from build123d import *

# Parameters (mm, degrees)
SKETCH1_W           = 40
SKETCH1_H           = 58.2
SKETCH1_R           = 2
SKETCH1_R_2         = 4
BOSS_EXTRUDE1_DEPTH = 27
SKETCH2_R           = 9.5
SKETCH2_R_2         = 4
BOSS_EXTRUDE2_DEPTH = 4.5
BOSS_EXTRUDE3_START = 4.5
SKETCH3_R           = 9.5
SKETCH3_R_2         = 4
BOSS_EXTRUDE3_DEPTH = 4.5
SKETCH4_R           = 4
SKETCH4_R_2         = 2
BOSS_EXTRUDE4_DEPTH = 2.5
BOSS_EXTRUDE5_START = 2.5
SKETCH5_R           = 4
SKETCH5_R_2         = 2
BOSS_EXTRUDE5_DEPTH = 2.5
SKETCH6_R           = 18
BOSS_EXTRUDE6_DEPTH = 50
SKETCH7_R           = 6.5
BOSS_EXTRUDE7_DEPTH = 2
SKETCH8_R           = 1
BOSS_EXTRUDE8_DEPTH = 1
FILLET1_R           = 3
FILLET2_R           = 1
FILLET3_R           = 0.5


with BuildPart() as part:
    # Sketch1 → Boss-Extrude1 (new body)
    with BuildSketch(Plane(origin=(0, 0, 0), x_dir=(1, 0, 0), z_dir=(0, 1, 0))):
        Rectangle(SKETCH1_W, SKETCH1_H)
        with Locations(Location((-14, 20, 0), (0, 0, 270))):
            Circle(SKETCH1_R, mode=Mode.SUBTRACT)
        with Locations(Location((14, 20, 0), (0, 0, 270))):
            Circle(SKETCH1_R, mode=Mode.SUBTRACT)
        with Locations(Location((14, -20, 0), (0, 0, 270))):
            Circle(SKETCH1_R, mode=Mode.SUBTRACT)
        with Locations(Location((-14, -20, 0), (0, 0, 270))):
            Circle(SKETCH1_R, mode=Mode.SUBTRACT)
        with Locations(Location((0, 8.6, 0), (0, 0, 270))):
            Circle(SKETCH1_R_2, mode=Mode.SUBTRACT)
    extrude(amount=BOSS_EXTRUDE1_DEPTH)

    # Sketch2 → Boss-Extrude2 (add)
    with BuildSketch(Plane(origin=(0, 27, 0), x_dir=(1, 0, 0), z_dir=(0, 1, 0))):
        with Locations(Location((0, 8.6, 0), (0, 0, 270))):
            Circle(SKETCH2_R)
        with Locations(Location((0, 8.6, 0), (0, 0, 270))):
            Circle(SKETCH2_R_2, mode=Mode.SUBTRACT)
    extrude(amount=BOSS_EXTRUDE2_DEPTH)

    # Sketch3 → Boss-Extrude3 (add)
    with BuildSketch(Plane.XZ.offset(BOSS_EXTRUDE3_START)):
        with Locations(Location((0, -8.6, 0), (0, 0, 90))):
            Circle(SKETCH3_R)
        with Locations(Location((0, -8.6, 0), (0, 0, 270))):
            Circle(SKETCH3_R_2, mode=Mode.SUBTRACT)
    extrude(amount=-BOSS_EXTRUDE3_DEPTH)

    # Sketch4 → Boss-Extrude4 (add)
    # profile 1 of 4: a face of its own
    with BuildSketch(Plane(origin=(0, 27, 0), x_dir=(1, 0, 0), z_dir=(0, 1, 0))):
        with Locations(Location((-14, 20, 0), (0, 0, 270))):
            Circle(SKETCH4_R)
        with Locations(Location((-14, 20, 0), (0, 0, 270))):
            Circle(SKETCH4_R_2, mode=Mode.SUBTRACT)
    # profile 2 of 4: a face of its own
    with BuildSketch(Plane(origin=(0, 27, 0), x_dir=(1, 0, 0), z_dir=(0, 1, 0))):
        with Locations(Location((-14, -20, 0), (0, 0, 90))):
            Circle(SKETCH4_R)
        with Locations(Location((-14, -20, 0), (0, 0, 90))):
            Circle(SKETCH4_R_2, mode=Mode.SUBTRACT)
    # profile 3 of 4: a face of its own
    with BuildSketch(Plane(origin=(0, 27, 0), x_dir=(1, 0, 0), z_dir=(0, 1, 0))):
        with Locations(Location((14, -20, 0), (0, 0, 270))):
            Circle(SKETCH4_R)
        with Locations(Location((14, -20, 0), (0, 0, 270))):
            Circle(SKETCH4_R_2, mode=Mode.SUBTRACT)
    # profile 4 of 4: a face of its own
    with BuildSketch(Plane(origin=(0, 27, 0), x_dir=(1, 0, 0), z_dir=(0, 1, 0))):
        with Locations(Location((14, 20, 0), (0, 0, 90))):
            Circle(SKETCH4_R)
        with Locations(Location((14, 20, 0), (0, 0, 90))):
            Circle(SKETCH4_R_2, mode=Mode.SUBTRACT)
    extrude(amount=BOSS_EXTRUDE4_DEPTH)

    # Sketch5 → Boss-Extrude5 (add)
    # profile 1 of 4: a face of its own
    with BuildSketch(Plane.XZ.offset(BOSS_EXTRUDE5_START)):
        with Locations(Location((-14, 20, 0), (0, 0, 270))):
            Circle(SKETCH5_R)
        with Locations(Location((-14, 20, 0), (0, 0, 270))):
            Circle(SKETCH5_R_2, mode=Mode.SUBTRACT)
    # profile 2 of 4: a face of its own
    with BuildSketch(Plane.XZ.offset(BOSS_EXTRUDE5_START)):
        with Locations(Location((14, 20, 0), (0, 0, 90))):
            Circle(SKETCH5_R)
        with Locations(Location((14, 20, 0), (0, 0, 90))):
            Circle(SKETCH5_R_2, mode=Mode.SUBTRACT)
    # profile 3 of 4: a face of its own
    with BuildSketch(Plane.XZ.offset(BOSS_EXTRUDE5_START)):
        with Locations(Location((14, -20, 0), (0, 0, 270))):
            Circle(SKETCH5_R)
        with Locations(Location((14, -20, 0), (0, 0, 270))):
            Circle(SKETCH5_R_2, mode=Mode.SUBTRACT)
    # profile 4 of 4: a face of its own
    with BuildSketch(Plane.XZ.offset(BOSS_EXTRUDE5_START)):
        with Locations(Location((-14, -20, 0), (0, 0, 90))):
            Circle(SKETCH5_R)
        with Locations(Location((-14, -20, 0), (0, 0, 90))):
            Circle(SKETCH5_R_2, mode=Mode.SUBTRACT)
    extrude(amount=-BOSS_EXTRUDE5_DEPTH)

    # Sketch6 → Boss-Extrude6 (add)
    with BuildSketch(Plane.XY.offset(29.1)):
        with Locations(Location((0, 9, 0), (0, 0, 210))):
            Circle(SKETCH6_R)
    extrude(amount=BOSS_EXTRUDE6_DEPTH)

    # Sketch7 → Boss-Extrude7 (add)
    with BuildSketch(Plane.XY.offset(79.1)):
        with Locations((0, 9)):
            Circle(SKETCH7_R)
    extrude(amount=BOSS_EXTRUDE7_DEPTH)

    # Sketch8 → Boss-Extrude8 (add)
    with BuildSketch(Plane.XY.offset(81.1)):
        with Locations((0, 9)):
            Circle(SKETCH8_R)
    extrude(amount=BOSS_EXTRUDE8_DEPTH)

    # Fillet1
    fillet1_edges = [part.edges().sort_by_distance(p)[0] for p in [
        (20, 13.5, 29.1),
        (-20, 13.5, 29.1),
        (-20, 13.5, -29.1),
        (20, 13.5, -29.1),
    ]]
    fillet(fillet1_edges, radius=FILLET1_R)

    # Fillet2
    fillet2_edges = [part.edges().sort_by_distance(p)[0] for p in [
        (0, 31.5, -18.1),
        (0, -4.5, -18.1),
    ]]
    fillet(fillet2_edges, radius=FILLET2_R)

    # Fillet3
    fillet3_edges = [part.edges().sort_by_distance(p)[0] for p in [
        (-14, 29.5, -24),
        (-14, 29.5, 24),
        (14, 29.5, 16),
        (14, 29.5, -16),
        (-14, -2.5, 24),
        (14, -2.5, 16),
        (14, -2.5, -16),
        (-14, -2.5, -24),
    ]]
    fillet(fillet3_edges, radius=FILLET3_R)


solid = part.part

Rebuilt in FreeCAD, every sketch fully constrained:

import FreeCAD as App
import Part
import Sketcher
from FreeCAD import Vector


def edges_at(feature, points):
    """Names of the edges that pass closest to the given points."""
    edges = feature.Shape.Edges
    near = lambda p: min(range(len(edges)), key=lambda i: edges[i].distToShape(Part.Vertex(*p))[0])
    return sorted({f"Edge{near(p) + 1}" for p in points})


def add_polygon(sketch, points):
    """Adds a closed chain of lines whose ends are joined by coincident constraints."""
    first, n = sketch.GeometryCount, len(points)
    for a, b in zip(points, points[1:] + points[:1]):
        sketch.addGeometry(Part.LineSegment(App.Vector(*a, 0), App.Vector(*b, 0)), False)
    for i in range(n):
        sketch.addConstraint(Sketcher.Constraint("Coincident", first + i, 2, first + (i + 1) % n, 1))

doc = App.newDocument("Part")
body = doc.addObject("PartDesign::Body", "Body")

sketch1 = body.newObject("Sketcher::SketchObject", "Sketch")
sketch1.AttachmentSupport = (doc.getObject("XZ_Plane"), [""])
sketch1.MapMode = "FlatFace"
add_polygon(sketch1, [(-20, -29.1), (-20, 29.1), (20, 29.1), (20, -29.1)])
sketch1.addGeometry(Part.Circle(Vector(-14, 20, 0), Vector(0, 0, 1), 2), False)
sketch1.addGeometry(Part.Circle(Vector(14, 20, 0), Vector(0, 0, 1), 2), False)
sketch1.addGeometry(Part.Circle(Vector(-14, -20, 0), Vector(0, 0, 1), 2), False)
sketch1.addGeometry(Part.Circle(Vector(0, -8.6, 0), Vector(0, 0, 1), 4), False)
sketch1.addGeometry(Part.Circle(Vector(14, -20, 0), Vector(0, 0, 1), 2), False)
sketch1.addConstraint(Sketcher.Constraint("Vertical", 0))
sketch1.addConstraint(Sketcher.Constraint("Horizontal", 1))
sketch1.addConstraint(Sketcher.Constraint("Vertical", 2))
sketch1.addConstraint(Sketcher.Constraint("Horizontal", 3))
sketch1.addConstraint(Sketcher.Constraint("Equal", 4, 5))
sketch1.addConstraint(Sketcher.Constraint("Equal", 5, 6))
sketch1.addConstraint(Sketcher.Constraint("Equal", 6, 8))
sketch1.addConstraint(Sketcher.Constraint("Symmetric", 5, 3, 6, 3, -1, 1))
sketch1.addConstraint(Sketcher.Constraint("Symmetric", 4, 3, 8, 3, -1, 1))
sketch1.addConstraint(Sketcher.Constraint("Symmetric", 0, 2, 2, 2, -1, 1))
sketch1.addConstraint(Sketcher.Constraint("Symmetric", 4, 3, 5, 3, -2))
sketch1.addConstraint(Sketcher.Constraint("PointOnObject", 7, 3, -2))
sketch1.addConstraint(Sketcher.Constraint("Diameter", 4, 4.0))
sketch1.addConstraint(Sketcher.Constraint("Diameter", 7, 8.0))
sketch1.addConstraint(Sketcher.Constraint("DistanceX", 1, 1, 1, 2, 40.0))
sketch1.addConstraint(Sketcher.Constraint("DistanceY", 0, 1, 0, 2, 58.2))
sketch1.addConstraint(Sketcher.Constraint("DistanceX", 4, 3, -1, 1, 14.0))
sketch1.addConstraint(Sketcher.Constraint("DistanceY", -1, 1, 4, 3, 20.0))
sketch1.addConstraint(Sketcher.Constraint("DistanceY", 7, 3, -1, 1, 8.6))
pad1 = body.newObject("PartDesign::Pad", "Pad")
pad1.Profile = sketch1
pad1.Length = 27
pad1.Reversed = True

sketch2 = body.newObject("Sketcher::SketchObject", "Sketch001")
sketch2.AttachmentSupport = (doc.getObject("XZ_Plane"), [""])
sketch2.MapMode = "FlatFace"
sketch2.AttachmentOffset = App.Placement(Vector(0, 0, -27), App.Rotation())
sketch2.addGeometry(Part.Circle(Vector(0, -8.6, 0), Vector(0, 0, 1), 9.5), False)
sketch2.addGeometry(Part.Circle(Vector(0, -8.6, 0), Vector(0, 0, 1), 4), False)
sketch2.addConstraint(Sketcher.Constraint("Coincident", 1, 3, 0, 3))
sketch2.addConstraint(Sketcher.Constraint("PointOnObject", 0, 3, -2))
sketch2.addConstraint(Sketcher.Constraint("Diameter", 0, 19.0))
sketch2.addConstraint(Sketcher.Constraint("Diameter", 1, 8.0))
sketch2.addConstraint(Sketcher.Constraint("DistanceY", 0, 3, -1, 1, 8.6))
pad2 = body.newObject("PartDesign::Pad", "Pad001")
pad2.Profile = sketch2
pad2.Length = 4.5
pad2.Reversed = True

sketch3 = body.newObject("Sketcher::SketchObject", "Sketch002")
sketch3.AttachmentSupport = (doc.getObject("XZ_Plane"), [""])
sketch3.MapMode = "FlatFace"
sketch3.AttachmentOffset = App.Placement(Vector(0, 0, 4.5), App.Rotation())
sketch3.addGeometry(Part.Circle(Vector(0, -8.6, 0), Vector(0, 0, 1), 9.5), False)
sketch3.addGeometry(Part.Circle(Vector(0, -8.6, 0), Vector(0, 0, 1), 4), False)
sketch3.addConstraint(Sketcher.Constraint("Coincident", 1, 3, 0, 3))
sketch3.addConstraint(Sketcher.Constraint("PointOnObject", 0, 3, -2))
sketch3.addConstraint(Sketcher.Constraint("Diameter", 0, 19.0))
sketch3.addConstraint(Sketcher.Constraint("Diameter", 1, 8.0))
sketch3.addConstraint(Sketcher.Constraint("DistanceY", 0, 3, -1, 1, 8.6))
pad3 = body.newObject("PartDesign::Pad", "Pad002")
pad3.Profile = sketch3
pad3.Length = 4.5
pad3.Reversed = True

sketch4 = body.newObject("Sketcher::SketchObject", "Sketch003")
sketch4.AttachmentSupport = (doc.getObject("XZ_Plane"), [""])
sketch4.MapMode = "FlatFace"
sketch4.AttachmentOffset = App.Placement(Vector(0, 0, -27), App.Rotation())
sketch4.addGeometry(Part.Circle(Vector(-14, -20, 0), Vector(0, 0, 1), 4), False)
sketch4.addGeometry(Part.Circle(Vector(-14, -20, 0), Vector(0, 0, 1), 2), False)
sketch4.addGeometry(Part.Circle(Vector(-14, 20, 0), Vector(0, 0, 1), 4), False)
sketch4.addGeometry(Part.Circle(Vector(-14, 20, 0), Vector(0, 0, 1), 2), False)
sketch4.addGeometry(Part.Circle(Vector(14, 20, 0), Vector(0, 0, 1), 4), False)
sketch4.addGeometry(Part.Circle(Vector(14, 20, 0), Vector(0, 0, 1), 2), False)
sketch4.addGeometry(Part.Circle(Vector(14, -20, 0), Vector(0, 0, 1), 4), False)
sketch4.addGeometry(Part.Circle(Vector(14, -20, 0), Vector(0, 0, 1), 2), False)
sketch4.addConstraint(Sketcher.Constraint("Coincident", 1, 3, 0, 3))
sketch4.addConstraint(Sketcher.Constraint("Coincident", 3, 3, 2, 3))
sketch4.addConstraint(Sketcher.Constraint("Coincident", 5, 3, 4, 3))
sketch4.addConstraint(Sketcher.Constraint("Coincident", 7, 3, 6, 3))
sketch4.addConstraint(Sketcher.Constraint("Equal", 0, 2))
sketch4.addConstraint(Sketcher.Constraint("Equal", 1, 3))
sketch4.addConstraint(Sketcher.Constraint("Equal", 2, 4))
sketch4.addConstraint(Sketcher.Constraint("Equal", 3, 5))
sketch4.addConstraint(Sketcher.Constraint("Equal", 4, 6))
sketch4.addConstraint(Sketcher.Constraint("Equal", 5, 7))
sketch4.addConstraint(Sketcher.Constraint("Symmetric", 0, 3, 4, 3, -1, 1))
sketch4.addConstraint(Sketcher.Constraint("Symmetric", 2, 3, 6, 3, -1, 1))
sketch4.addConstraint(Sketcher.Constraint("Symmetric", 2, 3, 4, 3, -2))
sketch4.addConstraint(Sketcher.Constraint("Diameter", 0, 8.0))
sketch4.addConstraint(Sketcher.Constraint("Diameter", 1, 4.0))
sketch4.addConstraint(Sketcher.Constraint("DistanceX", 0, 3, -1, 1, 14.0))
sketch4.addConstraint(Sketcher.Constraint("DistanceY", 0, 3, -1, 1, 20.0))
pad4 = body.newObject("PartDesign::Pad", "Pad003")
pad4.Profile = sketch4
pad4.Length = 2.5
pad4.Reversed = True

sketch5 = body.newObject("Sketcher::SketchObject", "Sketch004")
sketch5.AttachmentSupport = (doc.getObject("XZ_Plane"), [""])
sketch5.MapMode = "FlatFace"
sketch5.AttachmentOffset = App.Placement(Vector(0, 0, 2.5), App.Rotation())
sketch5.addGeometry(Part.Circle(Vector(-14, 20, 0), Vector(0, 0, 1), 4), False)
sketch5.addGeometry(Part.Circle(Vector(-14, 20, 0), Vector(0, 0, 1), 2), False)
sketch5.addGeometry(Part.Circle(Vector(14, 20, 0), Vector(0, 0, 1), 4), False)
sketch5.addGeometry(Part.Circle(Vector(14, 20, 0), Vector(0, 0, 1), 2), False)
sketch5.addGeometry(Part.Circle(Vector(14, -20, 0), Vector(0, 0, 1), 4), False)
sketch5.addGeometry(Part.Circle(Vector(14, -20, 0), Vector(0, 0, 1), 2), False)
sketch5.addGeometry(Part.Circle(Vector(-14, -20, 0), Vector(0, 0, 1), 4), False)
sketch5.addGeometry(Part.Circle(Vector(-14, -20, 0), Vector(0, 0, 1), 2), False)
sketch5.addConstraint(Sketcher.Constraint("Coincident", 1, 3, 0, 3))
sketch5.addConstraint(Sketcher.Constraint("Coincident", 3, 3, 2, 3))
sketch5.addConstraint(Sketcher.Constraint("Coincident", 5, 3, 4, 3))
sketch5.addConstraint(Sketcher.Constraint("Coincident", 7, 3, 6, 3))
sketch5.addConstraint(Sketcher.Constraint("Equal", 0, 2))
sketch5.addConstraint(Sketcher.Constraint("Equal", 1, 3))
sketch5.addConstraint(Sketcher.Constraint("Equal", 2, 4))
sketch5.addConstraint(Sketcher.Constraint("Equal", 3, 5))
sketch5.addConstraint(Sketcher.Constraint("Equal", 4, 6))
sketch5.addConstraint(Sketcher.Constraint("Equal", 5, 7))
sketch5.addConstraint(Sketcher.Constraint("Symmetric", 0, 3, 4, 3, -1, 1))
sketch5.addConstraint(Sketcher.Constraint("Symmetric", 2, 3, 6, 3, -1, 1))
sketch5.addConstraint(Sketcher.Constraint("Symmetric", 0, 3, 2, 3, -2))
sketch5.addConstraint(Sketcher.Constraint("Diameter", 0, 8.0))
sketch5.addConstraint(Sketcher.Constraint("Diameter", 1, 4.0))
sketch5.addConstraint(Sketcher.Constraint("DistanceX", 0, 3, -1, 1, 14.0))
sketch5.addConstraint(Sketcher.Constraint("DistanceY", -1, 1, 0, 3, 20.0))
pad5 = body.newObject("PartDesign::Pad", "Pad004")
pad5.Profile = sketch5
pad5.Length = 2.5
pad5.Reversed = True

sketch6 = body.newObject("Sketcher::SketchObject", "Sketch005")
sketch6.AttachmentSupport = (doc.getObject("XY_Plane"), [""])
sketch6.MapMode = "FlatFace"
sketch6.AttachmentOffset = App.Placement(Vector(0, 0, 29.1), App.Rotation())
sketch6.addGeometry(Part.Circle(Vector(0, 9, 0), Vector(0, 0, 1), 18), False)
sketch6.addConstraint(Sketcher.Constraint("PointOnObject", 0, 3, -2))
sketch6.addConstraint(Sketcher.Constraint("Diameter", 0, 36.0))
sketch6.addConstraint(Sketcher.Constraint("DistanceY", -1, 1, 0, 3, 9.0))
pad6 = body.newObject("PartDesign::Pad", "Pad005")
pad6.Profile = sketch6
pad6.Length = 50

sketch7 = body.newObject("Sketcher::SketchObject", "Sketch006")
sketch7.AttachmentSupport = (doc.getObject("XY_Plane"), [""])
sketch7.MapMode = "FlatFace"
sketch7.AttachmentOffset = App.Placement(Vector(0, 0, 79.1), App.Rotation())
sketch7.addGeometry(Part.Circle(Vector(0, 9, 0), Vector(0, 0, 1), 6), False)
sketch7.addConstraint(Sketcher.Constraint("PointOnObject", 0, 3, -2))
sketch7.addConstraint(Sketcher.Constraint("Diameter", 0, 13.0))
sketch7.addConstraint(Sketcher.Constraint("DistanceY", -1, 1, 0, 3, 9.0))
pad7 = body.newObject("PartDesign::Pad", "Pad006")
pad7.Profile = sketch7
pad7.Length = 2

sketch8 = body.newObject("Sketcher::SketchObject", "Sketch007")
sketch8.AttachmentSupport = (doc.getObject("XY_Plane"), [""])
sketch8.MapMode = "FlatFace"
sketch8.AttachmentOffset = App.Placement(Vector(0, 0, 81.1), App.Rotation())
sketch8.addGeometry(Part.Circle(Vector(0, 9, 0), Vector(0, 0, 1), 1), False)
sketch8.addConstraint(Sketcher.Constraint("PointOnObject", 0, 3, -2))
sketch8.addConstraint(Sketcher.Constraint("Diameter", 0, 2.0))
sketch8.addConstraint(Sketcher.Constraint("DistanceY", -1, 1, 0, 3, 9.0))
pad8 = body.newObject("PartDesign::Pad", "Pad007")
pad8.Profile = sketch8
pad8.Length = 1
doc.recompute()

fillet = body.newObject("PartDesign::Fillet", "Fillet")
fillet.Base = (pad8, edges_at(pad8, [
    (20, 13.5, 29.1),
    (-20, 13.5, 29.1),
    (-20, 13.5, -29.1),
    (20, 13.5, -29.1),
]))
fillet.Radius = 3
doc.recompute()

fillet2 = body.newObject("PartDesign::Fillet", "Fillet001")
fillet2.Base = (fillet, edges_at(fillet, [(0, 31.5, -18.1), (0, -4.5, -18.1)]))
fillet2.Radius = 1
doc.recompute()

fillet3 = body.newObject("PartDesign::Fillet", "Fillet002")
fillet3.Base = (fillet2, edges_at(fillet2, [
    (-14, 29.5, -24),
    (-14, 29.5, 24),
    (14, 29.5, 16),
    (14, 29.5, -16),
    (-14, -2.5, 24),
    (14, -2.5, 16),
    (14, -2.5, -16),
    (-14, -2.5, -24),
]))
fillet3.Radius = 0.5

doc.recompute()
